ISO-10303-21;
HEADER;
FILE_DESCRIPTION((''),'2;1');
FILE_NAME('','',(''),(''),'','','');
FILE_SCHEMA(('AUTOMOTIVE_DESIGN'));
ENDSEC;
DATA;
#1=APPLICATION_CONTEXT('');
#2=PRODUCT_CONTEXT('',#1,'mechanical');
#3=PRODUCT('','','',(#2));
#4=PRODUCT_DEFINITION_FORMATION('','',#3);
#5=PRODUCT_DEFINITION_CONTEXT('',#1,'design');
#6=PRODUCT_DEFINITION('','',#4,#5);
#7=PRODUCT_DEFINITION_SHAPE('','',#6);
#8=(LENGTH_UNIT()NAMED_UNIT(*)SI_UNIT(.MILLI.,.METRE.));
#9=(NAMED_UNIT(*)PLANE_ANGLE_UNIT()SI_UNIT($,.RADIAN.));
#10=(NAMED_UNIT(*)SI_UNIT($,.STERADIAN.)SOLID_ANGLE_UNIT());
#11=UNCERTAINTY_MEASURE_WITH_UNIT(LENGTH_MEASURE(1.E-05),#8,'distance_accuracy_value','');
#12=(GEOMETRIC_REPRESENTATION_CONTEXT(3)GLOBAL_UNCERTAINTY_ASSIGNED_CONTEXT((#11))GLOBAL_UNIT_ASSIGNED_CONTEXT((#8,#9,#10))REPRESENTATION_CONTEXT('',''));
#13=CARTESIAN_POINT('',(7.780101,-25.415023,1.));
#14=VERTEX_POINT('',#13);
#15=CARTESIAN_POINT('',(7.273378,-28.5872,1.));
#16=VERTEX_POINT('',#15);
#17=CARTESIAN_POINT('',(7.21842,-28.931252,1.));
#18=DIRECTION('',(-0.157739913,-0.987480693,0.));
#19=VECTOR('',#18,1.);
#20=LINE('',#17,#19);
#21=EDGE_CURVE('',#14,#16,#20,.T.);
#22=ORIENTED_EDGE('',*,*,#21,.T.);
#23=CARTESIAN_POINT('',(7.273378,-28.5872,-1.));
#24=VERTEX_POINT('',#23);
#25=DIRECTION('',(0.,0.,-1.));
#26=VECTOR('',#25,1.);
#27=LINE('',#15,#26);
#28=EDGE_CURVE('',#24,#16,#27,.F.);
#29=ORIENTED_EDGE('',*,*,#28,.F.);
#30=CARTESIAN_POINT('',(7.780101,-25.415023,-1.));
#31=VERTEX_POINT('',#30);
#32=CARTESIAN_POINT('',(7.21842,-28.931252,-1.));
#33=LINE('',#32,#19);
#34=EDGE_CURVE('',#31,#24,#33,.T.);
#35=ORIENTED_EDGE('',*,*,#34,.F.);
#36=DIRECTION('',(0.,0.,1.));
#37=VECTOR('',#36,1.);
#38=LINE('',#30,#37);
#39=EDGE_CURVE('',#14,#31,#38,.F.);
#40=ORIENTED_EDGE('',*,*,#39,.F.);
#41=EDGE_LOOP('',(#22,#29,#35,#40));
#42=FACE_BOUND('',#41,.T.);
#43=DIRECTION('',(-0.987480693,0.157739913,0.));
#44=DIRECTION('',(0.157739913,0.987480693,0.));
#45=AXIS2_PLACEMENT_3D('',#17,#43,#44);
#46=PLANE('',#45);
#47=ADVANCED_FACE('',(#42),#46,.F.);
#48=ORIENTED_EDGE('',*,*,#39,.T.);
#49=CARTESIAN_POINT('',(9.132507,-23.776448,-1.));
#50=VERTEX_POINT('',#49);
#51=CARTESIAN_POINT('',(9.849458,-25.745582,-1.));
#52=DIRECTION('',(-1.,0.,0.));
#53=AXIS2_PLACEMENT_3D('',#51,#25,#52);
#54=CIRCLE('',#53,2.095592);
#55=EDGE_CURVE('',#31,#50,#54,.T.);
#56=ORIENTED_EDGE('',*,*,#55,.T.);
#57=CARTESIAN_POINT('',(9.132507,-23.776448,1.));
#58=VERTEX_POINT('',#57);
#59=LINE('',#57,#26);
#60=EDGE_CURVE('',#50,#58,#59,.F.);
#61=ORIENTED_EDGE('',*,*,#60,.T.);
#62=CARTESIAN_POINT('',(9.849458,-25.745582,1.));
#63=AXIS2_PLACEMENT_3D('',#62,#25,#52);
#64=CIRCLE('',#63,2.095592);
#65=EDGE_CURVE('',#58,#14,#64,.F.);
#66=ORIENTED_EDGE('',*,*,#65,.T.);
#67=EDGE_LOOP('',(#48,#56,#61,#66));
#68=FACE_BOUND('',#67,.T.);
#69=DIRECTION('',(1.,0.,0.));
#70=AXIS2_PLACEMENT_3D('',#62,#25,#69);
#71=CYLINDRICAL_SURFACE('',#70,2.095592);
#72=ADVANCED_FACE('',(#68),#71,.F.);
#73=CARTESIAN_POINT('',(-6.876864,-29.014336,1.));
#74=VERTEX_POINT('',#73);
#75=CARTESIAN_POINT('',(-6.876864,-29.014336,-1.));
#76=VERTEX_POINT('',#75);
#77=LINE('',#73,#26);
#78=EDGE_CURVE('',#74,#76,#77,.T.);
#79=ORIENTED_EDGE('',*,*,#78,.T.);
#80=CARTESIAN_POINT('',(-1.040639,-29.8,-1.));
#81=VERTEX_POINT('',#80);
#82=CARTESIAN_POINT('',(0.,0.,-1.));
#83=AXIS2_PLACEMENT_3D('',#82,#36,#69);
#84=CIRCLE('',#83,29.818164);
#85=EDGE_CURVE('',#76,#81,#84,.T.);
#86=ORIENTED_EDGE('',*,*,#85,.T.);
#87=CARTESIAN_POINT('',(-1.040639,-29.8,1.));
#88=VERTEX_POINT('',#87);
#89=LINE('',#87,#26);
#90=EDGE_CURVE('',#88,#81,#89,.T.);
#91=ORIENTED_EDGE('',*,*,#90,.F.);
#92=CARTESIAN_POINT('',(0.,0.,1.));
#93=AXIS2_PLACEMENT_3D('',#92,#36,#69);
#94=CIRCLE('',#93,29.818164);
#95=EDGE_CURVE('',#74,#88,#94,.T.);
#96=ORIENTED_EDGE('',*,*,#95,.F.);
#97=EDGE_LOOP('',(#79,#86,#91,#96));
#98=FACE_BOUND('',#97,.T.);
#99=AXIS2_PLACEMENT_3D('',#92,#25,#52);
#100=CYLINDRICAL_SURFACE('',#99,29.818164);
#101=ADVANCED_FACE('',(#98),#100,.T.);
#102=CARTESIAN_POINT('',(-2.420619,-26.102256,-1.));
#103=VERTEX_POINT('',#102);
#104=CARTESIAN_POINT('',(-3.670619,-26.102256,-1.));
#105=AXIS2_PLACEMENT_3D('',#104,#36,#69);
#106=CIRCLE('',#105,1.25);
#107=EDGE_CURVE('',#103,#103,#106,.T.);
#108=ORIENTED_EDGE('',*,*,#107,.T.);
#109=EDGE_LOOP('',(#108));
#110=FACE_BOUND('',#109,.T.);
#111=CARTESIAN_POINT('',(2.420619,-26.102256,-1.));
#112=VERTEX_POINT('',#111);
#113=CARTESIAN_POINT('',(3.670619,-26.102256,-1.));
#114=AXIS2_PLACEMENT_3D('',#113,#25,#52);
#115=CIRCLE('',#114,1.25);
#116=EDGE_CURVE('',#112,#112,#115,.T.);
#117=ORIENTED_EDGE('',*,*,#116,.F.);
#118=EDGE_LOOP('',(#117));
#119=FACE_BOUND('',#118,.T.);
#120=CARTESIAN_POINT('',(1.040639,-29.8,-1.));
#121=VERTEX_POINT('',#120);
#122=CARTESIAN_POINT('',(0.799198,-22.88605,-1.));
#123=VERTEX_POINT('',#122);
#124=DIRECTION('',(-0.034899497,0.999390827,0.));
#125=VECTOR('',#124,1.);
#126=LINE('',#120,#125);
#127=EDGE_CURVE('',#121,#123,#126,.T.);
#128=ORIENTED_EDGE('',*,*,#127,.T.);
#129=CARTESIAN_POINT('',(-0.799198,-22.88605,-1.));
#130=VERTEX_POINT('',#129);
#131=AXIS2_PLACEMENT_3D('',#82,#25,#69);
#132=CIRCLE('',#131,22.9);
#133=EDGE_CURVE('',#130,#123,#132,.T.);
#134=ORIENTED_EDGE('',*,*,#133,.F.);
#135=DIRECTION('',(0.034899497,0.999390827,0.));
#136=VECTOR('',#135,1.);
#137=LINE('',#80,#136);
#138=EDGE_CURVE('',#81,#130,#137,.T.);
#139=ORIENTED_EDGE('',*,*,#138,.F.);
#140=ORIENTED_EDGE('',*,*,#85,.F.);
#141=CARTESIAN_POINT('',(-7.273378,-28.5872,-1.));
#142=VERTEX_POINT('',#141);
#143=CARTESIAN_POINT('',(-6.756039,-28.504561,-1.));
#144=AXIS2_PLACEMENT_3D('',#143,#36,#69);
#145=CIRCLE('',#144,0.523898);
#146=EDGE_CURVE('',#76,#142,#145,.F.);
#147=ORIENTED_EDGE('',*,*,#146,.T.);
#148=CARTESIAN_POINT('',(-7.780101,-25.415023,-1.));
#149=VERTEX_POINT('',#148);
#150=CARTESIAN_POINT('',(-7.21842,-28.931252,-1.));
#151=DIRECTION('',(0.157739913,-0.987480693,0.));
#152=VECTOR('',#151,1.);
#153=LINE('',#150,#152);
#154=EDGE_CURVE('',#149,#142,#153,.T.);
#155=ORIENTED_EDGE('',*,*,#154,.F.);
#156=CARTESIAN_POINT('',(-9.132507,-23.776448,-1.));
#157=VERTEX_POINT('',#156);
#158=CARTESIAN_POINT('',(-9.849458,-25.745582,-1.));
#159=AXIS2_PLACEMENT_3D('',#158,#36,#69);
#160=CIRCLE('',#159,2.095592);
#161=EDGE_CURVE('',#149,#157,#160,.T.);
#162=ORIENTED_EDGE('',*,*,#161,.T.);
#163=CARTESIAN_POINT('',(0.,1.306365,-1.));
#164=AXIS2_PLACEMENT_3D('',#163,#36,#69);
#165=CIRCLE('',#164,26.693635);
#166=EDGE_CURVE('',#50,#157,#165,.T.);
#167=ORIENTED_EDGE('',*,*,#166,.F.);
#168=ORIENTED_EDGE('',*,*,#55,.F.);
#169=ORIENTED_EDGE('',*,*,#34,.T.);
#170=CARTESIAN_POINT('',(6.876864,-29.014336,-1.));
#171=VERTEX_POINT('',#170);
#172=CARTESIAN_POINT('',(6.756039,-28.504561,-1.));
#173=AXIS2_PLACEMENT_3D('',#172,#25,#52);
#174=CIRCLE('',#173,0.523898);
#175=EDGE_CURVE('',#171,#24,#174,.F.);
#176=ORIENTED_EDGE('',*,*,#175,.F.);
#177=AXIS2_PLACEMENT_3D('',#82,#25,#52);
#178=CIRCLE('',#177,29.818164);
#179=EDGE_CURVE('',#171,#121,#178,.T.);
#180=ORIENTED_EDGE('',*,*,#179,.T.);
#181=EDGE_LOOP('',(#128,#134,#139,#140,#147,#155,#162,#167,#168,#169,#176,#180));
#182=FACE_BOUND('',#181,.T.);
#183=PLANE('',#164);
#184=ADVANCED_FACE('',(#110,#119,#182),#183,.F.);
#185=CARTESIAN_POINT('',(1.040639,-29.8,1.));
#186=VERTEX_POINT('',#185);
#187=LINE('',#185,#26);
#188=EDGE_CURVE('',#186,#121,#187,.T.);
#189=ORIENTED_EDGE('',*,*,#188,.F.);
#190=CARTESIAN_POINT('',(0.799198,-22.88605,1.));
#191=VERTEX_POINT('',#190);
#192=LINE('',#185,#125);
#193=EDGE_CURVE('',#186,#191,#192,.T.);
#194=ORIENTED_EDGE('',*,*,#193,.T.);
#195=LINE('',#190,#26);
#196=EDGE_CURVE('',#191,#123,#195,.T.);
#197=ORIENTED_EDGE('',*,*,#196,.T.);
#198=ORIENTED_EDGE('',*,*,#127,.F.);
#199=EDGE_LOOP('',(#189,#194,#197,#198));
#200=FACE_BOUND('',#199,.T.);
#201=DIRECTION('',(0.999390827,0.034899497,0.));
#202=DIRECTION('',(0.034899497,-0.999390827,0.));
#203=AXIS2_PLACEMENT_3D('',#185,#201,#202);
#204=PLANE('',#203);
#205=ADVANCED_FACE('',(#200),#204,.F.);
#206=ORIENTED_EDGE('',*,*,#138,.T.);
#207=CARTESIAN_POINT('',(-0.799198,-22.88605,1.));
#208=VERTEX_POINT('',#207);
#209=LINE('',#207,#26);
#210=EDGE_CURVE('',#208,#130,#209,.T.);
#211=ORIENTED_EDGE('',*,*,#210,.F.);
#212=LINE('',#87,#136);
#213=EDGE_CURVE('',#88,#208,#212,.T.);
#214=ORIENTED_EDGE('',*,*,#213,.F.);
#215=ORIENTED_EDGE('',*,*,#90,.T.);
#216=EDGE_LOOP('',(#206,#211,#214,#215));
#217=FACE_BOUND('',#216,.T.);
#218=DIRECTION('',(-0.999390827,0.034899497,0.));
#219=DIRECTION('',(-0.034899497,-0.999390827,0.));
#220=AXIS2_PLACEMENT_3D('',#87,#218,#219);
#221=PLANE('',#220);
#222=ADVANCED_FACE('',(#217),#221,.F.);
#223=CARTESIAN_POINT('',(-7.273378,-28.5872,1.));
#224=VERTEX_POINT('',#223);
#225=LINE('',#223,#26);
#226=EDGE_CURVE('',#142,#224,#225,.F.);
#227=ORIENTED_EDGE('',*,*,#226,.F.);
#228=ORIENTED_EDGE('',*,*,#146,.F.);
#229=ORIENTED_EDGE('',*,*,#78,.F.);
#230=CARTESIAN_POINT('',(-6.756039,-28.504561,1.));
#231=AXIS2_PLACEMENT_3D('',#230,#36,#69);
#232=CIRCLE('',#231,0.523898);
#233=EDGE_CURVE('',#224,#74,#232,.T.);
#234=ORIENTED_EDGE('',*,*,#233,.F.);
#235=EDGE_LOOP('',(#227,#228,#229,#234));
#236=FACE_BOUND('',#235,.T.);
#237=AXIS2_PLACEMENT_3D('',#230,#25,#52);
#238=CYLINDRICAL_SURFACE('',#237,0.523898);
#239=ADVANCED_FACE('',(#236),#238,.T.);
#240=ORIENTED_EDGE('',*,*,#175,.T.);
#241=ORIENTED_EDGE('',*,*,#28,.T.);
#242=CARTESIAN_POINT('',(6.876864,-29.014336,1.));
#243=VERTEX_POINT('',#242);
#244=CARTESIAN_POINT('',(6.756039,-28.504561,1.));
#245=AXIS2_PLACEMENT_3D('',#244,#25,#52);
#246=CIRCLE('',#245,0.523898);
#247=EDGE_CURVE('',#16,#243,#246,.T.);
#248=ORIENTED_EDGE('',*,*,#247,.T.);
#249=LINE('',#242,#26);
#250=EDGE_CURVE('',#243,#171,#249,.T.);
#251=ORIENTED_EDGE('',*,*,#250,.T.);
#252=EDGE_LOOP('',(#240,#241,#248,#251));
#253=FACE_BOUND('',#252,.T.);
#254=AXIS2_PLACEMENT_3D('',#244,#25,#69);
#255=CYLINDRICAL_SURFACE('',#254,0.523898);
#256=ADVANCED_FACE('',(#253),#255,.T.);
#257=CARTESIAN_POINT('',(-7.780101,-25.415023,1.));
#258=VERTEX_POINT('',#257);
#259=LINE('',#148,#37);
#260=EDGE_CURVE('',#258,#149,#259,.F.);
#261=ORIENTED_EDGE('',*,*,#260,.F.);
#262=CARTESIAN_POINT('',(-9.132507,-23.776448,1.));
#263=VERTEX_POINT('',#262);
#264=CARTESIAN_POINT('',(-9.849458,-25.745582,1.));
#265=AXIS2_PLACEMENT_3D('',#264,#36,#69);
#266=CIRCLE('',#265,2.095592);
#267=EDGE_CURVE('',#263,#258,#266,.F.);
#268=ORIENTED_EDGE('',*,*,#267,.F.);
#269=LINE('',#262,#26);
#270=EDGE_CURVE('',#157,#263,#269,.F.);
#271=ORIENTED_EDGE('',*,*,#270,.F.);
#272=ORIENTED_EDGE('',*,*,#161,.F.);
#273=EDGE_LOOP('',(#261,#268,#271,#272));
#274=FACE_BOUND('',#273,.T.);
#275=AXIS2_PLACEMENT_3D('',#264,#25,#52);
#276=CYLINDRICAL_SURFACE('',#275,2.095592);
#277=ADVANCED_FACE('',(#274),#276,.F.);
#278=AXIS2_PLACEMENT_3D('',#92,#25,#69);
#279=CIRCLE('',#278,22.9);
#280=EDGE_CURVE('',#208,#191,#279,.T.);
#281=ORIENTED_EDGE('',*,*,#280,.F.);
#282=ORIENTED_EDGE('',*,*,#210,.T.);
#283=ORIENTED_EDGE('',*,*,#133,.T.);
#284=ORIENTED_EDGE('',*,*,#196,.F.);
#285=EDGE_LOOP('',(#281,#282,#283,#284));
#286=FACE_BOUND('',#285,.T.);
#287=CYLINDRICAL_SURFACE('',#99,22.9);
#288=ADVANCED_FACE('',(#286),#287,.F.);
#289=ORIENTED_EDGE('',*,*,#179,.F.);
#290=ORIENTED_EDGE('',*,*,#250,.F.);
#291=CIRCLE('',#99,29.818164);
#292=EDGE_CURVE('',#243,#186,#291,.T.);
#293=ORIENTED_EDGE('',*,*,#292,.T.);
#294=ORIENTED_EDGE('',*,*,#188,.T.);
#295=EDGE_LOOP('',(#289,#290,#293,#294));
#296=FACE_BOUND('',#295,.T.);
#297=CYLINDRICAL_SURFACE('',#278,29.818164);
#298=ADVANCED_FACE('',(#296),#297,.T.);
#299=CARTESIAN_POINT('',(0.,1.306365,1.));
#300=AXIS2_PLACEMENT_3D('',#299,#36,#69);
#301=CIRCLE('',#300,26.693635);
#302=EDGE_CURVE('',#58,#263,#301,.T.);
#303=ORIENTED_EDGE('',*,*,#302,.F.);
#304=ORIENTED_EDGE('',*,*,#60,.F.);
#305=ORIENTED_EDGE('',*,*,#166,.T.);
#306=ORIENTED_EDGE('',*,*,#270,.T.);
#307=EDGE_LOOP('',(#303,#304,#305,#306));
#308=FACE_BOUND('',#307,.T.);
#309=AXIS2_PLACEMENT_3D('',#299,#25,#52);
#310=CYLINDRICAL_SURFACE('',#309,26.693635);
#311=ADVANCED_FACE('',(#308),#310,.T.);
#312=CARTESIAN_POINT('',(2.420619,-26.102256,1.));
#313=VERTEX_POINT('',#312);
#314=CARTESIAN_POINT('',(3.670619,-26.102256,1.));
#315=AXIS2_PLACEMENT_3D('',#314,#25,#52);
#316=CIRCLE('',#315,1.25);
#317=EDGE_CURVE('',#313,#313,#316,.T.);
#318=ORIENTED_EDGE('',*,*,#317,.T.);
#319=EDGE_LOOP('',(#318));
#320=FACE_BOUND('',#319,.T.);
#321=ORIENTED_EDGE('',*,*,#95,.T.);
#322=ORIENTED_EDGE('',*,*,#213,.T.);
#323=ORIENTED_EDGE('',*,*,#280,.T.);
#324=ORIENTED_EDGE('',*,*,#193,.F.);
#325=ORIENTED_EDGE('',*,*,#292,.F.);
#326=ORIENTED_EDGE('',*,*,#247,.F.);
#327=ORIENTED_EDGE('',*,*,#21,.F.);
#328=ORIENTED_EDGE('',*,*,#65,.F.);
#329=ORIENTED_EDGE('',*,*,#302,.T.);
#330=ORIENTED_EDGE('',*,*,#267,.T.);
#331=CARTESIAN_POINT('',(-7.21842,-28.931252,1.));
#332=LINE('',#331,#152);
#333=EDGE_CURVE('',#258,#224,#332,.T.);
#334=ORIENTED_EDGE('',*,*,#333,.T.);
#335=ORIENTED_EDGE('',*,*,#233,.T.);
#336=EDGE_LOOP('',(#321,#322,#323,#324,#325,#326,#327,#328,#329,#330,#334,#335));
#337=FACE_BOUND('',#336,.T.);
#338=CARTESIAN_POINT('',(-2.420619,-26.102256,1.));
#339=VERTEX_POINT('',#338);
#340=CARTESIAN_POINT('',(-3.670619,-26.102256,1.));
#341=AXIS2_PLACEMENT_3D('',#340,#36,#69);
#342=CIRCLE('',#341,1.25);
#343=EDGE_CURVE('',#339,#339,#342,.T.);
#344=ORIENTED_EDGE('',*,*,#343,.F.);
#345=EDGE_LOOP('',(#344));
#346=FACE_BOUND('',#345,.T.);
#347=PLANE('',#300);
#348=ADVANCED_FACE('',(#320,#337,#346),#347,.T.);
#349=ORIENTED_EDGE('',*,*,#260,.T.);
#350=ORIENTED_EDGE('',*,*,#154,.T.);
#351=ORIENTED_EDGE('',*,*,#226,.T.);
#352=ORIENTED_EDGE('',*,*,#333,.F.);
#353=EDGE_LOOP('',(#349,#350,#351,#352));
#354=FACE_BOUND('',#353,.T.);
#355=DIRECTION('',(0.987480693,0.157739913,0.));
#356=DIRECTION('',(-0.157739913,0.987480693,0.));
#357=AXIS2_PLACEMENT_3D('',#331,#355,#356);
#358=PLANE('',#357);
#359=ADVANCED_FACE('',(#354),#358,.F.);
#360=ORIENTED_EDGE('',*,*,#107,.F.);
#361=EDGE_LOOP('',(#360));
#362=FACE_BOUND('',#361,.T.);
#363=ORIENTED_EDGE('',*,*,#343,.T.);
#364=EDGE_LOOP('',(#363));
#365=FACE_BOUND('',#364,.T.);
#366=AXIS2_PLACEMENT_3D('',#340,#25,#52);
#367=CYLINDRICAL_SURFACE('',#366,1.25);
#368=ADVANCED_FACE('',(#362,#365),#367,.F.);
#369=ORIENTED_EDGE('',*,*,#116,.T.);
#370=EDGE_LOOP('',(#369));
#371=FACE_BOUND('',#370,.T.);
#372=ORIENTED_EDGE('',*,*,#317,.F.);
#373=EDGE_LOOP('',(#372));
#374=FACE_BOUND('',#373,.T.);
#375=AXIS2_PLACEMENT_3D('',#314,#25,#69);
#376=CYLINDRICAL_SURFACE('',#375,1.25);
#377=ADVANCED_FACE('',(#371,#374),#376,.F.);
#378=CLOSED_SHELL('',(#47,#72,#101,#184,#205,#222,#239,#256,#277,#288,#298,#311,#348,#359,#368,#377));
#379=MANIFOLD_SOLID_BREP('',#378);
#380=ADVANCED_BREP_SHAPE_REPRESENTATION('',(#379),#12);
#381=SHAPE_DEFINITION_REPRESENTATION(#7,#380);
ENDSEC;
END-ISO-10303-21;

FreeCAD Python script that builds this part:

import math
import FreeCAD as App
import Part
import Sketcher

V = App.Vector
Q = App.Units.Quantity


def edges_at(feature, points):
    """Names of the edges that pass closest to the given points."""
    edges = feature.Shape.Edges
    near = lambda p: min(range(len(edges)), key=lambda i: edges[i].distToShape(Part.Vertex(*p))[0])
    return sorted({f"Edge{near(p) + 1}" for p in points})

doc = App.newDocument("Part")
body = doc.addObject("PartDesign::Body", "Body")

sketch1 = body.newObject("Sketcher::SketchObject", "Sketch")
sketch1.AttachmentSupport = (doc.getObject("XY_Plane"), [""])
sketch1.MapMode = "FlatFace"
sketch1.addGeometry([
    Part.LineSegment(V(-8, -24.2, 0), V(-7.2, -28.9, 0)),
    Part.ArcOfCircle(Part.Circle(V(0, 0, 0), V(0, 0, 1), 29.8), math.radians(-104.01), math.radians(-92)),
    Part.LineSegment(V(-1, -29.8, 0), V(-0.8, -22.9, 0)),
    Part.ArcOfCircle(Part.Circle(V(0, 0, 0), V(0, 0, 1), 22.9), math.radians(90), math.radians(268)),
    Part.LineSegment(V(0, 22.9, 0), V(0, 28, 0)),
    Part.ArcOfCircle(Part.Circle(V(0, 1.3, 0), V(0, 0, 1), 26.7), math.radians(90), math.radians(253)),
    Part.Circle(V(-3.7, -26.1, 0), V(0, 0, 1), 1.2),
], False)
sketch1.addConstraint([
    Sketcher.Constraint("Coincident", 0, 2, 1, 1),
    Sketcher.Constraint("Coincident", 1, 2, 2, 1),
    Sketcher.Constraint("Coincident", 2, 2, 3, 2),
    Sketcher.Constraint("Coincident", 3, 1, 4, 1),
    Sketcher.Constraint("Coincident", 4, 2, 5, 1),
    Sketcher.Constraint("Coincident", 5, 2, 0, 1),
    Sketcher.Constraint("Vertical", 4),
    Sketcher.Constraint("Coincident", 1, 3, -1, 1),
    Sketcher.Constraint("Coincident", 3, 3, -1, 1),
    Sketcher.Constraint("PointOnObject", 5, 3, -2),
    Sketcher.Constraint("PointOnObject", 3, 1, -2),
    Sketcher.Constraint("Diameter", 6, Q("2.5 mm")),
    Sketcher.Constraint("Radius", 3, Q("22.9 mm")),
    Sketcher.Constraint("Angle", 2, Q("88 deg")),
    Sketcher.Constraint("DistanceY", 4, 1, 4, 2, Q("5.1 mm")),
    Sketcher.Constraint("DistanceY", 1, 2, -1, 1, Q("29.8 mm")),
    Sketcher.Constraint("Radius", 1, Q("29.818164 mm")),
    Sketcher.Constraint("Radius", 5, Q("26.693635 mm")),
    Sketcher.Constraint("DistanceX", 0, 2, 6, 3, Q("3.5478 mm")),
    Sketcher.Constraint("DistanceX", 6, 3, -1, 1, Q("3.670619 mm")),
    Sketcher.Constraint("DistanceY", 6, 3, 5, 3, Q("27.408621 mm")),
    Sketcher.Constraint("DistanceY", 0, 2, 5, 2, Q("4.76454 mm")),
])
pad1 = body.newObject("PartDesign::Pad", "Pad")
pad1.Profile = sketch1
pad1.Length = 2
pad1.Midplane = True
doc.recompute()

fillet = body.newObject("PartDesign::Fillet", "Fillet")
fillet.Base = (pad1, edges_at(pad1, [(-7.98, -24.167, 0)]))
fillet.Radius = 2.095592
doc.recompute()

fillet2 = body.newObject("PartDesign::Fillet", "Fillet001")
fillet2.Base = (fillet, edges_at(fillet, [(-7.218, -28.931, 0)]))
fillet2.Radius = 0.523898
body2 = doc.addObject("PartDesign::Body", "Body001")
doc.recompute()

body2.BaseFeature = body
doc.recompute()

mirroring = doc.addObject("Part::Mirroring", "Mirroring")
mirroring.Source = body
mirroring.Base = V(0, 28, 1)
mirroring.Normal = V(-1, 0, 0)
body3 = doc.addObject("PartDesign::Body", "Body002")
body3.BaseFeature = mirroring
boolean = body2.newObject("PartDesign::Boolean", "Boolean")
boolean.Type = "Fuse"
boolean.addObjects([body3])
doc.recompute()
mirroring.Visibility = False

doc.recompute()
